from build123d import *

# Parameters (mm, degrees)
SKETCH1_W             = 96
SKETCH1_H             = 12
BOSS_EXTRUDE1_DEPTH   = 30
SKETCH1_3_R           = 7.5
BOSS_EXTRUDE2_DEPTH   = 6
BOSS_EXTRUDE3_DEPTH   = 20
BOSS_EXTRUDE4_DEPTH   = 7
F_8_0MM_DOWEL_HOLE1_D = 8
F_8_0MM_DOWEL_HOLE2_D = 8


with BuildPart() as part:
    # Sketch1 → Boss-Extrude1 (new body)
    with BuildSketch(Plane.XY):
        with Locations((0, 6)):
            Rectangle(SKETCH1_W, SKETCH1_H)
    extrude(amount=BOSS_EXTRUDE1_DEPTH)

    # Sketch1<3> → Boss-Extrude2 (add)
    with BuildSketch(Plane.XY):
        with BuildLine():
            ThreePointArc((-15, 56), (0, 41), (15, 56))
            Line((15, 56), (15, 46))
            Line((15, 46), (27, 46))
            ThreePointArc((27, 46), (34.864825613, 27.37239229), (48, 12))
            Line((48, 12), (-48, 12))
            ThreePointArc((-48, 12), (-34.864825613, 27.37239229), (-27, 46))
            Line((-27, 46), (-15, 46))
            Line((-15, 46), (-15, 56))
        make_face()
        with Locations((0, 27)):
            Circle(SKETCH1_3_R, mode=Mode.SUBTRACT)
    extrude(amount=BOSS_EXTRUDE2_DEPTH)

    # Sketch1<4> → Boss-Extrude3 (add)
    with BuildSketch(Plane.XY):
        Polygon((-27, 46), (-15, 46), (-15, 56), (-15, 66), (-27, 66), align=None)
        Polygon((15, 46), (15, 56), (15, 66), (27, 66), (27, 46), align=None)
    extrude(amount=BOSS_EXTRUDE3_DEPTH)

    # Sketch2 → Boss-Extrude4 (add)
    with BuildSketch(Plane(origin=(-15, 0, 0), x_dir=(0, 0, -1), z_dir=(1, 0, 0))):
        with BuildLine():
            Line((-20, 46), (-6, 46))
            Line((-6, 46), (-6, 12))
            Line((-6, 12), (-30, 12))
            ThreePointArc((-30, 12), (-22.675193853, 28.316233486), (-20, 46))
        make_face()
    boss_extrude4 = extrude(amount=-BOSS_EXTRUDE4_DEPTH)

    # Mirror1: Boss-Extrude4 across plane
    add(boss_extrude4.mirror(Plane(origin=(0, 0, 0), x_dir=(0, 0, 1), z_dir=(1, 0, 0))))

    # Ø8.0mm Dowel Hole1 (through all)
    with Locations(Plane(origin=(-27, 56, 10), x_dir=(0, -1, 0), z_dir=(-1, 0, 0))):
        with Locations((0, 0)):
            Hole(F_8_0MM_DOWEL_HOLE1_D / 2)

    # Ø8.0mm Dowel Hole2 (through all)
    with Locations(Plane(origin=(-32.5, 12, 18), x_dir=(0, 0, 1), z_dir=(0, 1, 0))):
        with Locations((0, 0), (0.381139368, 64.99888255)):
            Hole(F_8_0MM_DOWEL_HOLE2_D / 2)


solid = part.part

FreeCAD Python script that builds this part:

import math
import FreeCAD as App
import Part
import Sketcher
Q = App.Units.Quantity


def add_polygon(sketch, points):
    """Adds a closed chain of lines whose ends are joined by coincident constraints."""
    first, n = sketch.GeometryCount, len(points)
    for a, b in zip(points, points[1:] + points[:1]):
        sketch.addGeometry(Part.LineSegment(App.Vector(*a, 0), App.Vector(*b, 0)), False)
    for i in range(n):
        sketch.addConstraint(Sketcher.Constraint("Coincident", first + i, 2, first + (i + 1) % n, 1))

doc = App.newDocument("Part")
body = doc.addObject("PartDesign::Body", "Body")

# Sketch on XY plane
sketch1 = body.newObject("Sketcher::SketchObject", "Sketch")
sketch1.AttachmentSupport = (doc.getObject("XY_Plane"), [""])
sketch1.MapMode = "FlatFace"
add_polygon(sketch1, [(-48, 12), (-48, 0), (48, 0), (48, 12)])  # lines 0-3
sketch1.addConstraint([
    Sketcher.Constraint("Vertical", 0),
    Sketcher.Constraint("Horizontal", 1),
    Sketcher.Constraint("Vertical", 2),
    Sketcher.Constraint("Horizontal", 3),
    Sketcher.Constraint("Symmetric", 0, 2, 1, 2, -1, 1),
    Sketcher.Constraint("DistanceX", 1, 1, 1, 2, Q("96 mm")),
    Sketcher.Constraint("DistanceY", 0, 2, 0, 1, Q("12 mm")),
])
pad1 = body.newObject("PartDesign::Pad", "Pad")
pad1.Profile = sketch1
pad1.Length = 30

# Sketch on XY plane
sketch2 = body.newObject("Sketcher::SketchObject", "Sketch001")
sketch2.AttachmentSupport = (doc.getObject("XY_Plane"), [""])
sketch2.MapMode = "FlatFace"
sketch2.addGeometry([
    Part.ArcOfCircle(Part.Circle(App.Vector(0, 56, 0), App.Vector(0, 0, 1), 15), math.radians(180), math.radians(360)),  # 0
    Part.LineSegment(App.Vector(-15, 56, 0), App.Vector(-15, 46, 0)),  # 1
    Part.LineSegment(App.Vector(-15, 46, 0), App.Vector(-27, 46, 0)),  # 2
    Part.ArcOfCircle(Part.Circle(App.Vector(-91, 62, 0), App.Vector(0, 0, 1), 66), math.radians(-49), math.radians(-14)),  # 3
    Part.LineSegment(App.Vector(-48, 12, 0), App.Vector(48, 12, 0)),  # 4
    Part.ArcOfCircle(Part.Circle(App.Vector(91, 62, 0), App.Vector(0, 0, 1), 66), math.radians(-166), math.radians(-131)),  # 5
    Part.LineSegment(App.Vector(27, 46, 0), App.Vector(15, 46, 0)),  # 6
    Part.LineSegment(App.Vector(15, 46, 0), App.Vector(15, 56, 0)),  # 7
    Part.Circle(App.Vector(0, 27, 0), App.Vector(0, 0, 1), 8),  # 8
], False)
sketch2.addConstraint([
    Sketcher.Constraint("Tangent", 0, 1, 1, 1),
    Sketcher.Constraint("Coincident", 1, 2, 2, 1),
    Sketcher.Constraint("Coincident", 2, 2, 3, 2),
    Sketcher.Constraint("Coincident", 3, 1, 4, 1),
    Sketcher.Constraint("Coincident", 4, 2, 5, 2),
    Sketcher.Constraint("Coincident", 5, 1, 6, 1),
    Sketcher.Constraint("Coincident", 6, 2, 7, 1),
    Sketcher.Constraint("Tangent", 7, 2, 0, 2),
    Sketcher.Constraint("Vertical", 1),
    Sketcher.Constraint("Horizontal", 2),
    Sketcher.Constraint("Horizontal", 4),
    Sketcher.Constraint("Horizontal", 6),
    Sketcher.Constraint("Vertical", 7),
    Sketcher.Constraint("Equal", 3, 5),
    Sketcher.Constraint("Symmetric", 3, 3, 5, 3, -2),
    Sketcher.Constraint("Symmetric", 1, 2, 6, 2, -2),
    Sketcher.Constraint("PointOnObject", 8, 3, -2),
    Sketcher.Constraint("Diameter", 8, Q("15 mm")),
    Sketcher.Constraint("Radius", 0, Q("15 mm")),
    Sketcher.Constraint("Radius", 3, Q("66 mm")),
    Sketcher.Constraint("DistanceX", 2, 2, 2, 1, Q("12 mm")),
    Sketcher.Constraint("DistanceX", 4, 1, 4, 2, Q("96 mm")),
    Sketcher.Constraint("DistanceY", 1, 2, 1, 1, Q("10 mm")),
    Sketcher.Constraint("DistanceY", -1, 1, 0, 3, Q("56 mm")),
    Sketcher.Constraint("DistanceY", -1, 1, 8, 3, Q("27 mm")),
    Sketcher.Constraint("DistanceY", -1, 1, 3, 1, Q("12 mm")),
])
pad2 = body.newObject("PartDesign::Pad", "Pad001")
pad2.Profile = sketch2
pad2.Length = 6

# Sketch on XY plane
sketch3 = body.newObject("Sketcher::SketchObject", "Sketch002")
sketch3.AttachmentSupport = (doc.getObject("XY_Plane"), [""])
sketch3.MapMode = "FlatFace"
add_polygon(sketch3, [(-27, 46), (-15, 46), (-15, 66), (-27, 66)])  # lines 0-3
add_polygon(sketch3, [(15, 66), (15, 46), (27, 46), (27, 66)])  # lines 4-7
sketch3.addConstraint([
    Sketcher.Constraint("Horizontal", 0),
    Sketcher.Constraint("Vertical", 1),
    Sketcher.Constraint("Horizontal", 2),
    Sketcher.Constraint("Vertical", 3),
    Sketcher.Constraint("Vertical", 4),
    Sketcher.Constraint("Horizontal", 5),
    Sketcher.Constraint("Vertical", 6),
    Sketcher.Constraint("Horizontal", 7),
    Sketcher.Constraint("Symmetric", 0, 2, 4, 2, -2),
    Sketcher.Constraint("Symmetric", 2, 2, 6, 2, -2),
    Sketcher.Constraint("DistanceX", 0, 1, 0, 2, Q("12 mm")),
    Sketcher.Constraint("DistanceY", 1, 1, 1, 2, Q("20 mm")),
    Sketcher.Constraint("DistanceX", 0, 2, -1, 1, Q("15 mm")),
    Sketcher.Constraint("DistanceY", -1, 1, 0, 2, Q("46 mm")),
])
pad3 = body.newObject("PartDesign::Pad", "Pad002")
pad3.Profile = sketch3
pad3.Length = 20

# Sketch on YZ plane
sketch4 = body.newObject("Sketcher::SketchObject", "Sketch003")
sketch4.AttachmentSupport = (doc.getObject("YZ_Plane"), [""])
sketch4.MapMode = "FlatFace"
sketch4.AttachmentOffset = App.Placement(App.Vector(0, 0, -15), App.Rotation())
sketch4.addGeometry([
    Part.LineSegment(App.Vector(46, 6, 0), App.Vector(46, 20, 0)),
    Part.ArcOfCircle(Part.Circle(App.Vector(47, 86, 0), App.Vector(0, 0, 1), 66), math.radians(-122), math.radians(-91)),
    Part.LineSegment(App.Vector(12, 30, 0), App.Vector(12, 6, 0)),
    Part.LineSegment(App.Vector(12, 6, 0), App.Vector(46, 6, 0)),
], False)
sketch4.addConstraint([
    Sketcher.Constraint("Coincident", 0, 2, 1, 2),
    Sketcher.Constraint("Coincident", 1, 1, 2, 1),
    Sketcher.Constraint("Coincident", 2, 2, 3, 1),
    Sketcher.Constraint("Coincident", 3, 2, 0, 1),
    Sketcher.Constraint("Vertical", 0),
    Sketcher.Constraint("Vertical", 2),
    Sketcher.Constraint("Horizontal", 3),
    Sketcher.Constraint("Radius", 1, Q("66 mm")),
    Sketcher.Constraint("DistanceX", 3, 1, 3, 2, Q("34 mm")),
    Sketcher.Constraint("DistanceY", 0, 1, 0, 2, Q("14 mm")),
    Sketcher.Constraint("DistanceY", 2, 2, 2, 1, Q("24 mm")),
    Sketcher.Constraint("DistanceX", -1, 1, 0, 2, Q("46 mm")),
    Sketcher.Constraint("DistanceY", -1, 1, 0, 2, Q("20 mm")),
])
pad4 = body.newObject("PartDesign::Pad", "Pad003")
pad4.Profile = sketch4
pad4.Length = 7
pad4.Reversed = True
doc.recompute()

mirrored = body.newObject("PartDesign::Mirrored", "Mirrored")
mirrored.Originals = [pad4]
mirrored.MirrorPlane = (doc.getObject("YZ_Plane"), [""])
body.Tip = mirrored

# Sketch on YZ plane
sketch5 = body.newObject("Sketcher::SketchObject", "Sketch004")
sketch5.AttachmentSupport = (doc.getObject("YZ_Plane"), [""])
sketch5.MapMode = "FlatFace"
sketch5.AttachmentOffset = App.Placement(App.Vector(0, 0, -27), App.Rotation())
sketch5.addGeometry(Part.Circle(App.Vector(56, 10, 0), App.Vector(0, 0, 1), 4), False)
sketch5.addConstraint([
    Sketcher.Constraint("Diameter", 0, Q("8 mm")),
    Sketcher.Constraint("DistanceX", -1, 1, 0, 3, Q("56 mm")),
    Sketcher.Constraint("DistanceY", -1, 1, 0, 3, Q("10 mm")),
])
doc.recompute()
hole = body.newObject("PartDesign::Hole", "Hole")
hole.Profile = sketch5
hole.ThreadType = "None"
hole.Diameter = 8
hole.DepthType = "ThroughAll"
hole.Reversed = True

# Sketch on XZ plane
sketch6 = body.newObject("Sketcher::SketchObject", "Sketch005")
sketch6.AttachmentSupport = (doc.getObject("XZ_Plane"), [""])
sketch6.MapMode = "FlatFace"
sketch6.AttachmentOffset = App.Placement(App.Vector(0, 0, -12), App.Rotation())
sketch6.addGeometry([
    Part.Circle(App.Vector(-32.5, 18, 0), App.Vector(0, 0, 1), 4),
    Part.Circle(App.Vector(32.5, 18.4, 0), App.Vector(0, 0, 1), 4),
], False)
sketch6.addConstraint([
    Sketcher.Constraint("Equal", 0, 1),
    Sketcher.Constraint("Diameter", 0, Q("8 mm")),
    Sketcher.Constraint("DistanceY", -1, 1, 0, 3, Q("18 mm")),
    Sketcher.Constraint("DistanceX", 0, 3, -1, 1, Q("32.5 mm")),
    Sketcher.Constraint("DistanceY", -1, 1, 1, 3, Q("18.381139 mm")),
    Sketcher.Constraint("DistanceX", -1, 1, 1, 3, Q("32.498883 mm")),
])
doc.recompute()
hole2 = body.newObject("PartDesign::Hole", "Hole001")
hole2.Profile = sketch6
hole2.ThreadType = "None"
hole2.Diameter = 8
hole2.DepthType = "ThroughAll"
hole2.Reversed = True

doc.recompute()
